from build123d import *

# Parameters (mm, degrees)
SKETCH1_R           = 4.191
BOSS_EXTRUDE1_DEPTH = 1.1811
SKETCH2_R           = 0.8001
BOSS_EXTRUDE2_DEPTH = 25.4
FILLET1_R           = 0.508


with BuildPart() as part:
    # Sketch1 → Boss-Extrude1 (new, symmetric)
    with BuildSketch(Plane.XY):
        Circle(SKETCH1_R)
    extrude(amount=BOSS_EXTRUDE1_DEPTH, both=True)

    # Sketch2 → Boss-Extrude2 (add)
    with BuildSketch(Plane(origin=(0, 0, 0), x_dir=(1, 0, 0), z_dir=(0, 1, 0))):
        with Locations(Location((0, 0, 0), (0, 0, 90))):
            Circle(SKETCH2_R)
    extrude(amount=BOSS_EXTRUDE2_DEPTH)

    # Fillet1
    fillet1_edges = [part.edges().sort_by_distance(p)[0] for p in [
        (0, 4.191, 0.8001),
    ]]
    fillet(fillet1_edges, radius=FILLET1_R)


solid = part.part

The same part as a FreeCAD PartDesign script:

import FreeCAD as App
import Part
import Sketcher
from FreeCAD import Vector
Q = App.Units.Quantity


def edges_at(feature, points):
    """Names of the edges that pass closest to the given points."""
    edges = feature.Shape.Edges
    near = lambda p: min(range(len(edges)), key=lambda i: edges[i].distToShape(Part.Vertex(*p))[0])
    return sorted({f"Edge{near(p) + 1}" for p in points})

doc = App.newDocument("Part")
params = doc.addObject("Spreadsheet::Sheet", "Params")
for row, (alias, value) in enumerate([
    ("sketch1_diameter", "0.33 in"),
    ("pad1_length", "0.093 in"),
    ("sketch2_diameter", "0.063 in"),
    ("pad2_length", "1 in"),
    ("fillet_radius", "0.02 in"),
], start=1):
    params.set(f"A{row}", alias)
    params.set(f"B{row}", "=" + value)
    params.setAlias(f"B{row}", alias)

body = doc.addObject("PartDesign::Body", "Body")

# Sketch on XY plane
sketch1 = body.newObject("Sketcher::SketchObject", "Sketch")
sketch1.AttachmentSupport = (doc.getObject("XY_Plane"), [""])
sketch1.MapMode = "FlatFace"
sketch1.addGeometry(Part.Circle(Vector(0, 0, 0), Vector(0, 0, 1), 4.191), False)
sketch1.addConstraint([
    Sketcher.Constraint("Coincident", 0, 3, -1, 1),
    Sketcher.Constraint("Diameter", 0, Q("0.33 in")),
])
sketch1.setExpression("Constraints[1]", "Params.sketch1_diameter")
pad1 = body.newObject("PartDesign::Pad", "Pad")
pad1.Profile = sketch1
pad1.setExpression("Length", "Params.pad1_length")
pad1.Midplane = True

# Sketch on XZ plane
sketch2 = body.newObject("Sketcher::SketchObject", "Sketch001")
sketch2.AttachmentSupport = (doc.getObject("XZ_Plane"), [""])
sketch2.MapMode = "FlatFace"
sketch2.addGeometry(Part.Circle(Vector(0, 0, 0), Vector(0, 0, 1), 0.8001), False)
sketch2.addConstraint([
    Sketcher.Constraint("Coincident", 0, 3, -1, 1),
    Sketcher.Constraint("Diameter", 0, Q("0.063 in")),
])
sketch2.setExpression("Constraints[1]", "Params.sketch2_diameter")
pad2 = body.newObject("PartDesign::Pad", "Pad001")
pad2.Profile = sketch2
pad2.setExpression("Length", "Params.pad2_length")
pad2.Reversed = True
doc.recompute()

fillet = body.newObject("PartDesign::Fillet", "Fillet")
fillet.Base = (pad2, edges_at(pad2, [(0, 4.191, 0.8)]))
fillet.setExpression("Radius", "Params.fillet_radius")

doc.recompute()
